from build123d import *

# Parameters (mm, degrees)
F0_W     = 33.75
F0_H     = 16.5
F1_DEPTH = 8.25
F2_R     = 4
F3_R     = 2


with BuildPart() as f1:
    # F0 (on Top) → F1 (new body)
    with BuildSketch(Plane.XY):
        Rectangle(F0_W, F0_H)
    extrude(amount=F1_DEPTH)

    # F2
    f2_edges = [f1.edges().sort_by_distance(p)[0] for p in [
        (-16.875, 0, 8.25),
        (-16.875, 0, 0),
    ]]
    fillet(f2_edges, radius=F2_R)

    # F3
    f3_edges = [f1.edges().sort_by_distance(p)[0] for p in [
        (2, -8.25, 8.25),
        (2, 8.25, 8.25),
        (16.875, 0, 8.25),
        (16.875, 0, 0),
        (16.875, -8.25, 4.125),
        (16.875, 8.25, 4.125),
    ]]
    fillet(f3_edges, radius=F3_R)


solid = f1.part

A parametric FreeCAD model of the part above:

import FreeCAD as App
import Part
import Sketcher


def edges_at(feature, points):
    """Names of the edges that pass closest to the given points."""
    edges = feature.Shape.Edges
    near = lambda p: min(range(len(edges)), key=lambda i: edges[i].distToShape(Part.Vertex(*p))[0])
    return sorted({f"Edge{near(p) + 1}" for p in points})


def add_polygon(sketch, points):
    """Adds a closed chain of lines whose ends are joined by coincident constraints."""
    first, n = sketch.GeometryCount, len(points)
    for a, b in zip(points, points[1:] + points[:1]):
        sketch.addGeometry(Part.LineSegment(App.Vector(*a, 0), App.Vector(*b, 0)), False)
    for i in range(n):
        sketch.addConstraint(Sketcher.Constraint("Coincident", first + i, 2, first + (i + 1) % n, 1))

doc = App.newDocument("Part")
body = doc.addObject("PartDesign::Body", "Body")

# Sketch on XY plane
sketch1 = body.newObject("Sketcher::SketchObject", "Sketch")
sketch1.AttachmentSupport = (doc.getObject("XY_Plane"), [""])
sketch1.MapMode = "FlatFace"
add_polygon(sketch1, [(-17, 8), (-17, -8), (17, -8), (17, 8)])  # lines 0-3
sketch1.addConstraint([
    Sketcher.Constraint("Vertical", 0),
    Sketcher.Constraint("Horizontal", 1),
    Sketcher.Constraint("Vertical", 2),
    Sketcher.Constraint("Horizontal", 3),
    Sketcher.Constraint("Symmetric", 0, 2, 2, 2, -1, 1),
    Sketcher.Constraint("DistanceY", 0, 2, 0, 1, 16.5),
    Sketcher.Constraint("DistanceX", 1, 1, 1, 2, 33.75),
])
pad1 = body.newObject("PartDesign::Pad", "Pad")
pad1.Profile = sketch1
pad1.Length = 8.25
doc.recompute()

fillet = body.newObject("PartDesign::Fillet", "Fillet")
fillet.Base = (pad1, edges_at(pad1, [(-16.875, 0, 8.25), (-16.875, 0, 0)]))
fillet.Radius = 4
doc.recompute()

fillet2 = body.newObject("PartDesign::Fillet", "Fillet001")
fillet2.Base = (fillet, edges_at(fillet, [
    (2, -8.25, 8.25),
    (2, 8.25, 8.25),
    (16.875, 0, 8.25),
    (16.875, 0, 0),
    (16.875, -8.25, 4.125),
    (16.875, 8.25, 4.125),
]))
fillet2.Radius = 2

doc.recompute()
